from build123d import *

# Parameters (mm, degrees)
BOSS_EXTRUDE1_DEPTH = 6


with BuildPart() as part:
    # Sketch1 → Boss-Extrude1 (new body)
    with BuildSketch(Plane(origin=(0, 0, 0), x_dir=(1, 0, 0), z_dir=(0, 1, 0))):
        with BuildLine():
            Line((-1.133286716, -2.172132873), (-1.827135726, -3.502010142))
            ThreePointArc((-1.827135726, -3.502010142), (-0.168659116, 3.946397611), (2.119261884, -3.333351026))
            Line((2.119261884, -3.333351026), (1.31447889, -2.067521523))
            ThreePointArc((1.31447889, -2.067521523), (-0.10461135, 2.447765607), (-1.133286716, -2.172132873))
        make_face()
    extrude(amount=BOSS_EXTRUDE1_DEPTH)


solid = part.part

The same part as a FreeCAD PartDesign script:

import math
import FreeCAD as App
import Part
import Sketcher

V = App.Vector

doc = App.newDocument("Part")
body = doc.addObject("PartDesign::Body", "Body")

sketch1 = doc.addObject("Sketcher::SketchObject", "Sketch")
body.addObject(sketch1)
sketch1.AttachmentSupport = (doc.XZ_Plane, [""])
sketch1.MapMode = "FlatFace"
sketch1.addGeometry([
    Part.LineSegment(V(-1.8, 3.5, 0), V(-1.1, 2.2, 0)),
    Part.ArcOfCircle(Part.Circle(V(0, 0, 0), V(0, 0, 1), 2.5), math.radians(118), math.radians(418)),
    Part.LineSegment(V(1.3, 2.1, 0), V(2.1, 3.3, 0)),
    Part.ArcOfCircle(Part.Circle(V(0, 0, 0), V(0, 0, 1), 4), math.radians(118), math.radians(418)),
], False)
sketch1.addConstraint([
    Sketcher.Constraint("Coincident", 0, 2, 1, 1),
    Sketcher.Constraint("Coincident", 1, 2, 2, 1),
    Sketcher.Constraint("Coincident", 2, 2, 3, 2),
    Sketcher.Constraint("Coincident", 3, 1, 0, 1),
    Sketcher.Constraint("Coincident", 1, 3, -1, 1),
    Sketcher.Constraint("Coincident", 3, 3, -1, 1),
    Sketcher.Constraint("Radius", 1, 2.45),
    Sketcher.Constraint("Radius", 3, 3.95),
    Sketcher.Constraint("DistanceX", -1, 1, 1, 2, 1.314479),
    Sketcher.Constraint("DistanceX", -1, 1, 2, 2, 2.119262),
    Sketcher.Constraint("DistanceY", -1, 1, 3, 1, 3.50201),
    Sketcher.Constraint("DistanceY", 1, 2, 0, 2, 0.104611),
])
pad1 = doc.addObject("PartDesign::Pad", "Pad")
body.addObject(pad1)
pad1.Profile = sketch1
pad1.Length = 6
pad1.Reversed = True

doc.recompute()
